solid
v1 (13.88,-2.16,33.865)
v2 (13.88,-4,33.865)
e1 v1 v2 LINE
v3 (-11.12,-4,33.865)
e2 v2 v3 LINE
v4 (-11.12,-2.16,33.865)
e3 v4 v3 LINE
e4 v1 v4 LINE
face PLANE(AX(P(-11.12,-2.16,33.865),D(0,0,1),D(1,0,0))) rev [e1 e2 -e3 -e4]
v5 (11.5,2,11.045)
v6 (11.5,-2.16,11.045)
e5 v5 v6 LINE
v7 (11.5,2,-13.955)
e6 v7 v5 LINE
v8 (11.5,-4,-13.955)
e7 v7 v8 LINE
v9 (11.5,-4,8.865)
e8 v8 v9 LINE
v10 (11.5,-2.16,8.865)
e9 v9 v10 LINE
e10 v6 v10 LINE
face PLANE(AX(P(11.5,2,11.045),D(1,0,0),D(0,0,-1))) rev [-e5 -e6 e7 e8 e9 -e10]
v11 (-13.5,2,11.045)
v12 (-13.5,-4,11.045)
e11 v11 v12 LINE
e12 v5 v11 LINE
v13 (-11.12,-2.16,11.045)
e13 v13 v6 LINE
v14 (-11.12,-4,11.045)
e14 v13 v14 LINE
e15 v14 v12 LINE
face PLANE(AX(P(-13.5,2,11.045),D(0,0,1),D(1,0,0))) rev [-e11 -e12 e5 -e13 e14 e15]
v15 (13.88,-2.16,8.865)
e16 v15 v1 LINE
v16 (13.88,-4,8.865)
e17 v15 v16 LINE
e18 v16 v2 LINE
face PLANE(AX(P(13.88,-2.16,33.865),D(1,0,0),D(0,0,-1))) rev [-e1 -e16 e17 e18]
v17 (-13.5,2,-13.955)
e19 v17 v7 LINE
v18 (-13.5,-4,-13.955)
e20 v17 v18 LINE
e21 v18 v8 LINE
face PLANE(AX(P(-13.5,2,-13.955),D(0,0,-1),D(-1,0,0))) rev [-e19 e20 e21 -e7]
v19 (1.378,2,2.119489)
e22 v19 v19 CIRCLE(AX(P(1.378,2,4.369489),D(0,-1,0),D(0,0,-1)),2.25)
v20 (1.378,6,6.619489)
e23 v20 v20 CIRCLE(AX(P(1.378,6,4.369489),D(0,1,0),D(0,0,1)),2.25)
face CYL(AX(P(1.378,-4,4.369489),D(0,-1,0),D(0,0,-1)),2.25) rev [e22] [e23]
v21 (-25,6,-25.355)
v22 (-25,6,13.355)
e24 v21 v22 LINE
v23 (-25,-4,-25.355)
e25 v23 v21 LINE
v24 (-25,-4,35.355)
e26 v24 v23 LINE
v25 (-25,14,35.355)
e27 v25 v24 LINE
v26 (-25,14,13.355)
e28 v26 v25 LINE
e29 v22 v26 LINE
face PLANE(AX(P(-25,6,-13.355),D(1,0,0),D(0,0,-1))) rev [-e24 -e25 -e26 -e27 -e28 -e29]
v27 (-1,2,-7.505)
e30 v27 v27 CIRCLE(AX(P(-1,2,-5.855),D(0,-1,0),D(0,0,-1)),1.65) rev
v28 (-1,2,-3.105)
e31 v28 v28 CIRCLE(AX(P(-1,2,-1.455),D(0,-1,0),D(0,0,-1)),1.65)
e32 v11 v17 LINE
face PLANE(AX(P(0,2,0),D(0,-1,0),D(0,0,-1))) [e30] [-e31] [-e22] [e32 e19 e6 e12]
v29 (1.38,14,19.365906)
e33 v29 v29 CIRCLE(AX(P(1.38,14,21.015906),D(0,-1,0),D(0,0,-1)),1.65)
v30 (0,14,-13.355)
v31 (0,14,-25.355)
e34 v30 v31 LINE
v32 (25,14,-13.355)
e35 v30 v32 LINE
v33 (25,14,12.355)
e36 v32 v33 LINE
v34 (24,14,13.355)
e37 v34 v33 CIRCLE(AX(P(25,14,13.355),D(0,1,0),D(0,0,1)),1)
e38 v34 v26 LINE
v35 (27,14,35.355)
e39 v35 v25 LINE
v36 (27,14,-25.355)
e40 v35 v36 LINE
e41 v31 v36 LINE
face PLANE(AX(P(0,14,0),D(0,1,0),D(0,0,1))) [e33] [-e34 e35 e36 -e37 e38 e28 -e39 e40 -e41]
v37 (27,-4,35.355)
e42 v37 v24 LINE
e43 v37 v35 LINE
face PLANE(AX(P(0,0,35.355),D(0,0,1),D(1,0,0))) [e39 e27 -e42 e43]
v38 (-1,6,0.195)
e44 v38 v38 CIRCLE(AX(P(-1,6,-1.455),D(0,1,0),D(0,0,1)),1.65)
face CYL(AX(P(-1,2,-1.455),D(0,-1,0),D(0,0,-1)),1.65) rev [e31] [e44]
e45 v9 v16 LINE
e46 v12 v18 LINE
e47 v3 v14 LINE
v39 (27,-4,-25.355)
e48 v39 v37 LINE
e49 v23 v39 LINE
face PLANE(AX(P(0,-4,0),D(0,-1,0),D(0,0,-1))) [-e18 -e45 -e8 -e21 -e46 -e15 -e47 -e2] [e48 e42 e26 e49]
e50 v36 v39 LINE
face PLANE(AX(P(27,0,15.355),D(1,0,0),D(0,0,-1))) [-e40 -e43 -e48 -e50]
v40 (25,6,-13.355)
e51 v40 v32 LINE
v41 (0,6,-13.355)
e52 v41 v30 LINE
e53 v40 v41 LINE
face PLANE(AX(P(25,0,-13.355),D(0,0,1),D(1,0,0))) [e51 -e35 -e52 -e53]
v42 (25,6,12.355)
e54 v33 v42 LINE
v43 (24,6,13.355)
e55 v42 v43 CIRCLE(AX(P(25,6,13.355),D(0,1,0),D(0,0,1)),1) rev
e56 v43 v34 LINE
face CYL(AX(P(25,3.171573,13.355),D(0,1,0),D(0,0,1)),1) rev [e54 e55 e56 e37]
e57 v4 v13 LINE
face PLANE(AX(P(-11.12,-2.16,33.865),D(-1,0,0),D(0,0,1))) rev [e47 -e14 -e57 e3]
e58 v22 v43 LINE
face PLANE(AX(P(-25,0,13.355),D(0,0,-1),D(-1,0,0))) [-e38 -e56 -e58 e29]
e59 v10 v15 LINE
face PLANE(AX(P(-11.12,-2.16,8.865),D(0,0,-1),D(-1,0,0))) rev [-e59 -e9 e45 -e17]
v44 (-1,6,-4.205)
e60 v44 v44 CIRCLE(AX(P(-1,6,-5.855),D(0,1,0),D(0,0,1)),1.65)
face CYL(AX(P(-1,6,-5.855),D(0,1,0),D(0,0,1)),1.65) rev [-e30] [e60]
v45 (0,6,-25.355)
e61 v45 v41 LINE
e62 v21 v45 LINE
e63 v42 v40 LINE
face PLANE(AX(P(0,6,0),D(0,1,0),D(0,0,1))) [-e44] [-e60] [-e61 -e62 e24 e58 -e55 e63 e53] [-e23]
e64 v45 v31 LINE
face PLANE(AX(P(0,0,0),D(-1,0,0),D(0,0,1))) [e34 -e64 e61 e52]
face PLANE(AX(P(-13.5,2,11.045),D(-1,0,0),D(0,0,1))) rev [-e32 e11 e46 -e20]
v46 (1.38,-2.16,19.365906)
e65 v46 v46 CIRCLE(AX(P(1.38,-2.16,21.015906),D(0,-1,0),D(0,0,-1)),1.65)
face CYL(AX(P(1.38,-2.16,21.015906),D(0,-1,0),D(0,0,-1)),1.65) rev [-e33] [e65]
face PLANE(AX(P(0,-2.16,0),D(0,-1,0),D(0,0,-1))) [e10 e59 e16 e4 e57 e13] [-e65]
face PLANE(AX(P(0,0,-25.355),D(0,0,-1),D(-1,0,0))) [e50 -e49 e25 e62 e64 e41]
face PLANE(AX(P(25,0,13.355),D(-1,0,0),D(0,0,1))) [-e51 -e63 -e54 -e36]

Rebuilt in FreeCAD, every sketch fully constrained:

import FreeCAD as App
import Part
import Sketcher

V = App.Vector

doc = App.newDocument("Part")
body = doc.addObject("PartDesign::Body", "Body")

sketch1 = doc.addObject("Sketcher::SketchObject", "Sketch")
body.addObject(sketch1)
sketch1.AttachmentSupport = (doc.XZ_Plane, [""])
sketch1.MapMode = "FlatFace"
sketch1.addGeometry(Part.LineSegment(V(-25, -13, 0), V(-25, 13, 0)), False)
sketch1.addGeometry(Part.LineSegment(V(-25, 13, 0), V(25, 13, 0)), False)
sketch1.addGeometry(Part.LineSegment(V(25, 13, 0), V(25, -13, 0)), False)
sketch1.addGeometry(Part.LineSegment(V(25, -13, 0), V(-25, -13, 0)), False)
sketch1.addConstraint(Sketcher.Constraint("Coincident", 0, 2, 1, 1))
sketch1.addConstraint(Sketcher.Constraint("Coincident", 1, 2, 2, 1))
sketch1.addConstraint(Sketcher.Constraint("Coincident", 2, 2, 3, 1))
sketch1.addConstraint(Sketcher.Constraint("Coincident", 3, 2, 0, 1))
sketch1.addConstraint(Sketcher.Constraint("Vertical", 0))
sketch1.addConstraint(Sketcher.Constraint("Horizontal", 1))
sketch1.addConstraint(Sketcher.Constraint("Vertical", 2))
sketch1.addConstraint(Sketcher.Constraint("Horizontal", 3))
sketch1.addConstraint(Sketcher.Constraint("Symmetric", 0, 2, 2, 2, -1, 1))
sketch1.addConstraint(Sketcher.Constraint("DistanceX", 1, 1, 1, 2, 50.0))
sketch1.addConstraint(Sketcher.Constraint("DistanceY", 0, 1, 0, 2, 26.71))
pad1 = doc.addObject("PartDesign::Pad", "Pad")
body.addObject(pad1)
pad1.Profile = sketch1
pad1.Length = 6
pad1.Reversed = True

sketch2 = doc.addObject("Sketcher::SketchObject", "Sketch001")
body.addObject(sketch2)
sketch2.AttachmentSupport = (doc.XZ_Plane, [""])
sketch2.MapMode = "FlatFace"
sketch2.AttachmentOffset = App.Placement(V(0, 0, -6), App.Rotation())
sketch2.addGeometry(Part.LineSegment(V(-25, -13.4, 0), V(25, -13.4, 0)), False)
sketch2.addGeometry(Part.LineSegment(V(25, -13.4, 0), V(25, 13.4, 0)), False)
sketch2.addGeometry(Part.LineSegment(V(25, 13.4, 0), V(-25, 13.4, 0)), False)
sketch2.addGeometry(Part.LineSegment(V(-25, 13.4, 0), V(-25, 15.4, 0)), False)
sketch2.addGeometry(Part.LineSegment(V(-25, 15.4, 0), V(27, 15.4, 0)), False)
sketch2.addGeometry(Part.LineSegment(V(27, 15.4, 0), V(27, -15.4, 0)), False)
sketch2.addGeometry(Part.LineSegment(V(27, -15.4, 0), V(-25, -15.4, 0)), False)
sketch2.addGeometry(Part.LineSegment(V(-25, -15.4, 0), V(-25, -13.4, 0)), False)
sketch2.addConstraint(Sketcher.Constraint("Coincident", 0, 2, 1, 1))
sketch2.addConstraint(Sketcher.Constraint("Coincident", 1, 2, 2, 1))
sketch2.addConstraint(Sketcher.Constraint("Coincident", 2, 2, 3, 1))
sketch2.addConstraint(Sketcher.Constraint("Coincident", 3, 2, 4, 1))
sketch2.addConstraint(Sketcher.Constraint("Coincident", 4, 2, 5, 1))
sketch2.addConstraint(Sketcher.Constraint("Coincident", 5, 2, 6, 1))
sketch2.addConstraint(Sketcher.Constraint("Coincident", 6, 2, 7, 1))
sketch2.addConstraint(Sketcher.Constraint("Coincident", 7, 2, 0, 1))
sketch2.addConstraint(Sketcher.Constraint("Horizontal", 0))
sketch2.addConstraint(Sketcher.Constraint("Vertical", 1))
sketch2.addConstraint(Sketcher.Constraint("Horizontal", 2))
sketch2.addConstraint(Sketcher.Constraint("Vertical", 3))
sketch2.addConstraint(Sketcher.Constraint("Horizontal", 4))
sketch2.addConstraint(Sketcher.Constraint("Vertical", 5))
sketch2.addConstraint(Sketcher.Constraint("Horizontal", 6))
sketch2.addConstraint(Sketcher.Constraint("Vertical", 7))
sketch2.addConstraint(Sketcher.Constraint("Symmetric", 0, 2, 2, 2, -1, 1))
sketch2.addConstraint(Sketcher.Constraint("Symmetric", 3, 2, 6, 2, -1))
sketch2.addConstraint(Sketcher.Constraint("DistanceX", 0, 1, 0, 2, 50.0))
sketch2.addConstraint(Sketcher.Constraint("DistanceX", 4, 1, 4, 2, 52.0))
sketch2.addConstraint(Sketcher.Constraint("DistanceY", 3, 1, 3, 2, 2.0))
sketch2.addConstraint(Sketcher.Constraint("DistanceY", 1, 1, 1, 2, 26.71))
pad2 = doc.addObject("PartDesign::Pad", "Pad001")
body.addObject(pad2)
pad2.Profile = sketch2
pad2.Type = "TwoLengths"
pad2.Length = 8
pad2.Length2 = 6
pad2.Reversed = True

sketch3 = doc.addObject("Sketcher::SketchObject", "Sketch002")
body.addObject(sketch3)
sketch3.AttachmentSupport = (doc.XZ_Plane, [""])
sketch3.MapMode = "FlatFace"
sketch3.AttachmentOffset = App.Placement(V(0, 0, -6), App.Rotation())
sketch3.addGeometry(Part.Circle(V(-1, -5.9, 0), V(0, 0, 1), 1.6), False)
sketch3.addConstraint(Sketcher.Constraint("Diameter", 0, 3.3))
sketch3.addConstraint(Sketcher.Constraint("DistanceX", 0, 3, -1, 1, 1.0))
sketch3.addConstraint(Sketcher.Constraint("DistanceY", 0, 3, -1, 1, 5.855))
doc.recompute()
hole = doc.addObject("PartDesign::Hole", "Hole")
body.addObject(hole)
hole.Profile = sketch3
hole.ThreadType = "None"
hole.Diameter = 3.3
hole.DepthType = "Dimension"
hole.Depth = 10.1
hole.DrillPoint = "Angled"
hole.DrillPointAngle = 118
hole.Reversed = True

sketch4 = doc.addObject("Sketcher::SketchObject", "Sketch003")
body.addObject(sketch4)
sketch4.AttachmentSupport = (doc.YZ_Plane, [""])
sketch4.MapMode = "FlatFace"
sketch4.AttachmentOffset = App.Placement(V(0, 0, -25), App.Rotation())
sketch4.addGeometry(Part.LineSegment(V(14, -15.4, 0), V(6, -15.4, 0)), False)
sketch4.addGeometry(Part.LineSegment(V(6, -15.4, 0), V(6, -13.4, 0)), False)
sketch4.addGeometry(Part.LineSegment(V(6, -13.4, 0), V(14, -13.4, 0)), False)
sketch4.addGeometry(Part.LineSegment(V(14, -13.4, 0), V(14, -15.4, 0)), False)
sketch4.addConstraint(Sketcher.Constraint("Coincident", 0, 2, 1, 1))
sketch4.addConstraint(Sketcher.Constraint("Coincident", 1, 2, 2, 1))
sketch4.addConstraint(Sketcher.Constraint("Coincident", 2, 2, 3, 1))
sketch4.addConstraint(Sketcher.Constraint("Coincident", 3, 2, 0, 1))
sketch4.addConstraint(Sketcher.Constraint("Horizontal", 0))
sketch4.addConstraint(Sketcher.Constraint("Vertical", 1))
sketch4.addConstraint(Sketcher.Constraint("Horizontal", 2))
sketch4.addConstraint(Sketcher.Constraint("Vertical", 3))
sketch4.addConstraint(Sketcher.Constraint("DistanceX", 0, 2, 0, 1, 8.0))
sketch4.addConstraint(Sketcher.Constraint("DistanceY", 1, 1, 1, 2, 2.0))
sketch4.addConstraint(Sketcher.Constraint("DistanceX", -1, 1, 0, 2, 6.0))
sketch4.addConstraint(Sketcher.Constraint("DistanceY", 0, 2, -1, 1, 15.355))
pocket1 = doc.addObject("PartDesign::Pocket", "Pocket")
body.addObject(pocket1)
pocket1.Profile = sketch4
pocket1.Length = 25
pocket1.Reversed = True

sketch5 = doc.addObject("Sketcher::SketchObject", "Sketch004")
body.addObject(sketch5)
sketch5.AttachmentSupport = (doc.XY_Plane, [""])
sketch5.MapMode = "FlatFace"
sketch5.AttachmentOffset = App.Placement(V(0, 0, -15.355), App.Rotation())
sketch5.addGeometry(Part.LineSegment(V(-25, 6, 0), V(0, 6, 0)), False)
sketch5.addGeometry(Part.LineSegment(V(0, 6, 0), V(0, 14, 0)), False)
sketch5.addGeometry(Part.LineSegment(V(0, 14, 0), V(27, 14, 0)), False)
sketch5.addGeometry(Part.LineSegment(V(27, 14, 0), V(27, 0, 0)), False)
sketch5.addGeometry(Part.LineSegment(V(27, 0, 0), V(-25, 0, 0)), False)
sketch5.addGeometry(Part.LineSegment(V(-25, 0, 0), V(-25, 6, 0)), False)
sketch5.addConstraint(Sketcher.Constraint("Coincident", 0, 2, 1, 1))
sketch5.addConstraint(Sketcher.Constraint("Coincident", 1, 2, 2, 1))
sketch5.addConstraint(Sketcher.Constraint("Coincident", 2, 2, 3, 1))
sketch5.addConstraint(Sketcher.Constraint("Coincident", 3, 2, 4, 1))
sketch5.addConstraint(Sketcher.Constraint("Coincident", 4, 2, 5, 1))
sketch5.addConstraint(Sketcher.Constraint("Coincident", 5, 2, 0, 1))
sketch5.addConstraint(Sketcher.Constraint("Horizontal", 0))
sketch5.addConstraint(Sketcher.Constraint("Vertical", 1))
sketch5.addConstraint(Sketcher.Constraint("Horizontal", 2))
sketch5.addConstraint(Sketcher.Constraint("Vertical", 3))
sketch5.addConstraint(Sketcher.Constraint("Horizontal", 4))
sketch5.addConstraint(Sketcher.Constraint("Vertical", 5))
sketch5.addConstraint(Sketcher.Constraint("PointOnObject", 0, 2, -2))
sketch5.addConstraint(Sketcher.Constraint("PointOnObject", 3, 2, -1))
sketch5.addConstraint(Sketcher.Constraint("DistanceX", 0, 1, 0, 2, 25.0))
sketch5.addConstraint(Sketcher.Constraint("DistanceX", 2, 1, 2, 2, 27.0))
sketch5.addConstraint(Sketcher.Constraint("DistanceY", 1, 1, 1, 2, 8.0))
sketch5.addConstraint(Sketcher.Constraint("DistanceY", 3, 2, 3, 1, 14.0))
pad3 = doc.addObject("PartDesign::Pad", "Pad002")
body.addObject(pad3)
pad3.Profile = sketch5
pad3.Length = 10
pad3.Reversed = True

sketch6 = doc.addObject("Sketcher::SketchObject", "Sketch005")
body.addObject(sketch6)
sketch6.AttachmentSupport = (doc.XY_Plane, [""])
sketch6.MapMode = "FlatFace"
sketch6.AttachmentOffset = App.Placement(V(0, 0, 15.355), App.Rotation())
sketch6.addGeometry(Part.LineSegment(V(-25, 14, 0), V(-25, 0, 0)), False)
sketch6.addGeometry(Part.LineSegment(V(-25, 0, 0), V(27, 0, 0)), False)
sketch6.addGeometry(Part.LineSegment(V(27, 0, 0), V(27, 14, 0)), False)
sketch6.addGeometry(Part.LineSegment(V(27, 14, 0), V(-25, 14, 0)), False)
sketch6.addConstraint(Sketcher.Constraint("Coincident", 0, 2, 1, 1))
sketch6.addConstraint(Sketcher.Constraint("Coincident", 1, 2, 2, 1))
sketch6.addConstraint(Sketcher.Constraint("Coincident", 2, 2, 3, 1))
sketch6.addConstraint(Sketcher.Constraint("Coincident", 3, 2, 0, 1))
sketch6.addConstraint(Sketcher.Constraint("Vertical", 0))
sketch6.addConstraint(Sketcher.Constraint("Horizontal", 1))
sketch6.addConstraint(Sketcher.Constraint("Vertical", 2))
sketch6.addConstraint(Sketcher.Constraint("Horizontal", 3))
sketch6.addConstraint(Sketcher.Constraint("PointOnObject", 0, 2, -1))
sketch6.addConstraint(Sketcher.Constraint("DistanceX", 1, 1, 1, 2, 52.0))
sketch6.addConstraint(Sketcher.Constraint("DistanceY", 0, 2, 0, 1, 14.0))
sketch6.addConstraint(Sketcher.Constraint("DistanceX", 0, 2, -1, 1, 25.0))
pad4 = doc.addObject("PartDesign::Pad", "Pad003")
body.addObject(pad4)
pad4.Profile = sketch6
pad4.Length = 20

sketch7 = doc.addObject("Sketcher::SketchObject", "Sketch006")
body.addObject(sketch7)
sketch7.AttachmentSupport = (doc.XZ_Plane, [""])
sketch7.MapMode = "FlatFace"
sketch7.AttachmentOffset = App.Placement(V(0, 0, -14), App.Rotation())
sketch7.addGeometry(Part.Circle(V(25, 13.4, 0), V(0, 0, 1), 1), False)
sketch7.addConstraint(Sketcher.Constraint("Diameter", 0, 2.0))
sketch7.addConstraint(Sketcher.Constraint("DistanceX", -1, 1, 0, 3, 25.0))
sketch7.addConstraint(Sketcher.Constraint("DistanceY", -1, 1, 0, 3, 13.355))
pocket2 = doc.addObject("PartDesign::Pocket", "Pocket001")
body.addObject(pocket2)
pocket2.Profile = sketch7
pocket2.Length = 8
pocket2.Reversed = True

sketch8 = doc.addObject("Sketcher::SketchObject", "Sketch007")
body.addObject(sketch8)
sketch8.AttachmentSupport = (doc.XZ_Plane, [""])
sketch8.MapMode = "FlatFace"
sketch8.addGeometry(Part.LineSegment(V(-13.5, 11, 0), V(-13.5, -14, 0)), False)
sketch8.addGeometry(Part.LineSegment(V(-13.5, -14, 0), V(11.5, -14, 0)), False)
sketch8.addGeometry(Part.LineSegment(V(11.5, -14, 0), V(11.5, 11, 0)), False)
sketch8.addGeometry(Part.LineSegment(V(11.5, 11, 0), V(-13.5, 11, 0)), False)
sketch8.addGeometry(Part.Circle(V(-1, -1.5, 0), V(0, 0, 1), 1.2), False)
sketch8.addConstraint(Sketcher.Constraint("Coincident", 0, 2, 1, 1))
sketch8.addConstraint(Sketcher.Constraint("Coincident", 1, 2, 2, 1))
sketch8.addConstraint(Sketcher.Constraint("Coincident", 2, 2, 3, 1))
sketch8.addConstraint(Sketcher.Constraint("Coincident", 3, 2, 0, 1))
sketch8.addConstraint(Sketcher.Constraint("Vertical", 0))
sketch8.addConstraint(Sketcher.Constraint("Horizontal", 1))
sketch8.addConstraint(Sketcher.Constraint("Vertical", 2))
sketch8.addConstraint(Sketcher.Constraint("Horizontal", 3))
sketch8.addConstraint(Sketcher.Constraint("Equal", 3, 0))
sketch8.addConstraint(Sketcher.Constraint("DistanceX", 1, 1, 1, 2, 25.0))
sketch8.addConstraint(Sketcher.Constraint("DistanceX", 4, 3, -1, 1, 1.0))
sketch8.addConstraint(Sketcher.Constraint("DistanceX", 0, 2, -1, 1, 13.5))
sketch8.addConstraint(Sketcher.Constraint("DistanceY", 0, 2, 4, 3, 12.5))
sketch8.addConstraint(Sketcher.Constraint("Diameter", 4, 2.387784))
sketch8.addConstraint(Sketcher.Constraint("DistanceY", 4, 3, -1, 1, 1.455))
pocket3 = doc.addObject("PartDesign::Pocket", "Pocket002")
body.addObject(pocket3)
pocket3.Profile = sketch8
pocket3.Length = 2

sketch9 = doc.addObject("Sketcher::SketchObject", "Sketch008")
body.addObject(sketch9)
sketch9.AttachmentSupport = (doc.XZ_Plane, [""])
sketch9.MapMode = "FlatFace"
sketch9.AttachmentOffset = App.Placement(V(0, 0, -2), App.Rotation())
sketch9.addGeometry(Part.Circle(V(-1, -1.5, 0), V(0, 0, 1), 1.6), False)
sketch9.addConstraint(Sketcher.Constraint("Diameter", 0, 3.3))
sketch9.addConstraint(Sketcher.Constraint("DistanceX", 0, 3, -1, 1, 1.0))
sketch9.addConstraint(Sketcher.Constraint("DistanceY", 0, 3, -1, 1, 1.455))
doc.recompute()
hole2 = doc.addObject("PartDesign::Hole", "Hole001")
body.addObject(hole2)
hole2.Profile = sketch9
hole2.ThreadType = "None"
hole2.Diameter = 3.3
hole2.DepthType = "ThroughAll"

sketch10 = doc.addObject("Sketcher::SketchObject", "Sketch009")
body.addObject(sketch10)
sketch10.AttachmentSupport = (doc.XZ_Plane, [""])
sketch10.MapMode = "FlatFace"
sketch10.addGeometry(Part.LineSegment(V(-25, 35, 0), V(-25, -25, 0)), False)
sketch10.addGeometry(Part.LineSegment(V(-25, -25, 0), V(27, -25, 0)), False)
sketch10.addGeometry(Part.LineSegment(V(27, -25, 0), V(27, 35, 0)), False)
sketch10.addGeometry(Part.LineSegment(V(27, 35, 0), V(-25, 35, 0)), False)
sketch10.addGeometry(Part.LineSegment(V(12, -14, 0), V(-14, -14, 0)), False)
sketch10.addGeometry(Part.LineSegment(V(-14, -14, 0), V(-14, 11, 0)), False)
sketch10.addGeometry(Part.LineSegment(V(-14, 11, 0), V(12, 11, 0)), False)
sketch10.addGeometry(Part.LineSegment(V(12, 11, 0), V(12, -14, 0)), False)
sketch10.addConstraint(Sketcher.Constraint("Coincident", 0, 2, 1, 1))
sketch10.addConstraint(Sketcher.Constraint("Coincident", 1, 2, 2, 1))
sketch10.addConstraint(Sketcher.Constraint("Coincident", 2, 2, 3, 1))
sketch10.addConstraint(Sketcher.Constraint("Coincident", 3, 2, 0, 1))
sketch10.addConstraint(Sketcher.Constraint("Coincident", 4, 2, 5, 1))
sketch10.addConstraint(Sketcher.Constraint("Coincident", 5, 2, 6, 1))
sketch10.addConstraint(Sketcher.Constraint("Coincident", 6, 2, 7, 1))
sketch10.addConstraint(Sketcher.Constraint("Coincident", 7, 2, 4, 1))
sketch10.addConstraint(Sketcher.Constraint("Vertical", 0))
sketch10.addConstraint(Sketcher.Constraint("Horizontal", 1))
sketch10.addConstraint(Sketcher.Constraint("Vertical", 2))
sketch10.addConstraint(Sketcher.Constraint("Horizontal", 3))
sketch10.addConstraint(Sketcher.Constraint("Horizontal", 4))
sketch10.addConstraint(Sketcher.Constraint("Vertical", 5))
sketch10.addConstraint(Sketcher.Constraint("Horizontal", 6))
sketch10.addConstraint(Sketcher.Constraint("Vertical", 7))
sketch10.addConstraint(Sketcher.Constraint("Equal", 6, 5))
sketch10.addConstraint(Sketcher.Constraint("DistanceX", 1, 1, 1, 2, 52.0))
sketch10.addConstraint(Sketcher.Constraint("DistanceX", 4, 2, 4, 1, 25.0))
sketch10.addConstraint(Sketcher.Constraint("DistanceX", 0, 2, -1, 1, 25.0))
sketch10.addConstraint(Sketcher.Constraint("DistanceY", 0, 2, 0, 1, 60.71))
sketch10.addConstraint(Sketcher.Constraint("DistanceX", 4, 2, -1, 1, 13.5))
sketch10.addConstraint(Sketcher.Constraint("DistanceY", 0, 2, 4, 2, 11.4))
sketch10.addConstraint(Sketcher.Constraint("DistanceY", 0, 2, -1, 1, 25.355))
pad5 = doc.addObject("PartDesign::Pad", "Pad004")
body.addObject(pad5)
pad5.Profile = sketch10
pad5.Length = 4

sketch11 = doc.addObject("Sketcher::SketchObject", "Sketch010")
body.addObject(sketch11)
sketch11.AttachmentSupport = (doc.XZ_Plane, [""])
sketch11.MapMode = "FlatFace"
sketch11.AttachmentOffset = App.Placement(V(0, 0, 4), App.Rotation())
sketch11.addGeometry(Part.LineSegment(V(-11, 34, 0), V(-11, 9, 0)), False)
sketch11.addGeometry(Part.LineSegment(V(-11, 9, 0), V(14, 9, 0)), False)
sketch11.addGeometry(Part.LineSegment(V(14, 9, 0), V(14, 34, 0)), False)
sketch11.addGeometry(Part.LineSegment(V(14, 34, 0), V(-11, 34, 0)), False)
sketch11.addConstraint(Sketcher.Constraint("Coincident", 0, 2, 1, 1))
sketch11.addConstraint(Sketcher.Constraint("Coincident", 1, 2, 2, 1))
sketch11.addConstraint(Sketcher.Constraint("Coincident", 2, 2, 3, 1))
sketch11.addConstraint(Sketcher.Constraint("Coincident", 3, 2, 0, 1))
sketch11.addConstraint(Sketcher.Constraint("Vertical", 0))
sketch11.addConstraint(Sketcher.Constraint("Horizontal", 1))
sketch11.addConstraint(Sketcher.Constraint("Vertical", 2))
sketch11.addConstraint(Sketcher.Constraint("Horizontal", 3))
sketch11.addConstraint(Sketcher.Constraint("Equal", 3, 0))
sketch11.addConstraint(Sketcher.Constraint("DistanceX", 1, 1, 1, 2, 25.0))
sketch11.addConstraint(Sketcher.Constraint("DistanceX", 0, 2, -1, 1, 11.12))
sketch11.addConstraint(Sketcher.Constraint("DistanceY", -1, 1, 0, 2, 8.865))
pocket4 = doc.addObject("PartDesign::Pocket", "Pocket003")
body.addObject(pocket4)
pocket4.Profile = sketch11
pocket4.Length = 1.84

sketch12 = doc.addObject("Sketcher::SketchObject", "Sketch011")
body.addObject(sketch12)
sketch12.AttachmentSupport = (doc.XZ_Plane, [""])
sketch12.MapMode = "FlatFace"
sketch12.AttachmentOffset = App.Placement(V(0, 0, 4), App.Rotation())
sketch12.addGeometry(Part.Circle(V(1.4, 4.4, 0), V(0, 0, 1), 2.2), False)
sketch12.addConstraint(Sketcher.Constraint("Diameter", 0, 4.5))
sketch12.addConstraint(Sketcher.Constraint("DistanceX", -1, 1, 0, 3, 1.378))
sketch12.addConstraint(Sketcher.Constraint("DistanceY", -1, 1, 0, 3, 4.369489))
doc.recompute()
hole3 = doc.addObject("PartDesign::Hole", "Hole002")
body.addObject(hole3)
hole3.Profile = sketch12
hole3.ThreadType = "None"
hole3.Diameter = 4.5
hole3.DepthType = "ThroughAll"
hole3.HoleCutType = "Counterbore"
hole3.HoleCutDiameter = 8
hole3.HoleCutDepth = 4.6

sketch13 = doc.addObject("Sketcher::SketchObject", "Sketch012")
body.addObject(sketch13)
sketch13.AttachmentSupport = (doc.XZ_Plane, [""])
sketch13.MapMode = "FlatFace"
sketch13.AttachmentOffset = App.Placement(V(0, 0, 2.16), App.Rotation())
sketch13.addGeometry(Part.Circle(V(1.4, 21, 0), V(0, 0, 1), 1.6), False)
sketch13.addConstraint(Sketcher.Constraint("Diameter", 0, 3.3))
sketch13.addConstraint(Sketcher.Constraint("DistanceX", -1, 1, 0, 3, 1.38))
sketch13.addConstraint(Sketcher.Constraint("DistanceY", -1, 1, 0, 3, 21.015906))
doc.recompute()
hole4 = doc.addObject("PartDesign::Hole", "Hole003")
body.addObject(hole4)
hole4.Profile = sketch13
hole4.ThreadType = "None"
hole4.Diameter = 3.3
hole4.DepthType = "ThroughAll"

doc.recompute()
